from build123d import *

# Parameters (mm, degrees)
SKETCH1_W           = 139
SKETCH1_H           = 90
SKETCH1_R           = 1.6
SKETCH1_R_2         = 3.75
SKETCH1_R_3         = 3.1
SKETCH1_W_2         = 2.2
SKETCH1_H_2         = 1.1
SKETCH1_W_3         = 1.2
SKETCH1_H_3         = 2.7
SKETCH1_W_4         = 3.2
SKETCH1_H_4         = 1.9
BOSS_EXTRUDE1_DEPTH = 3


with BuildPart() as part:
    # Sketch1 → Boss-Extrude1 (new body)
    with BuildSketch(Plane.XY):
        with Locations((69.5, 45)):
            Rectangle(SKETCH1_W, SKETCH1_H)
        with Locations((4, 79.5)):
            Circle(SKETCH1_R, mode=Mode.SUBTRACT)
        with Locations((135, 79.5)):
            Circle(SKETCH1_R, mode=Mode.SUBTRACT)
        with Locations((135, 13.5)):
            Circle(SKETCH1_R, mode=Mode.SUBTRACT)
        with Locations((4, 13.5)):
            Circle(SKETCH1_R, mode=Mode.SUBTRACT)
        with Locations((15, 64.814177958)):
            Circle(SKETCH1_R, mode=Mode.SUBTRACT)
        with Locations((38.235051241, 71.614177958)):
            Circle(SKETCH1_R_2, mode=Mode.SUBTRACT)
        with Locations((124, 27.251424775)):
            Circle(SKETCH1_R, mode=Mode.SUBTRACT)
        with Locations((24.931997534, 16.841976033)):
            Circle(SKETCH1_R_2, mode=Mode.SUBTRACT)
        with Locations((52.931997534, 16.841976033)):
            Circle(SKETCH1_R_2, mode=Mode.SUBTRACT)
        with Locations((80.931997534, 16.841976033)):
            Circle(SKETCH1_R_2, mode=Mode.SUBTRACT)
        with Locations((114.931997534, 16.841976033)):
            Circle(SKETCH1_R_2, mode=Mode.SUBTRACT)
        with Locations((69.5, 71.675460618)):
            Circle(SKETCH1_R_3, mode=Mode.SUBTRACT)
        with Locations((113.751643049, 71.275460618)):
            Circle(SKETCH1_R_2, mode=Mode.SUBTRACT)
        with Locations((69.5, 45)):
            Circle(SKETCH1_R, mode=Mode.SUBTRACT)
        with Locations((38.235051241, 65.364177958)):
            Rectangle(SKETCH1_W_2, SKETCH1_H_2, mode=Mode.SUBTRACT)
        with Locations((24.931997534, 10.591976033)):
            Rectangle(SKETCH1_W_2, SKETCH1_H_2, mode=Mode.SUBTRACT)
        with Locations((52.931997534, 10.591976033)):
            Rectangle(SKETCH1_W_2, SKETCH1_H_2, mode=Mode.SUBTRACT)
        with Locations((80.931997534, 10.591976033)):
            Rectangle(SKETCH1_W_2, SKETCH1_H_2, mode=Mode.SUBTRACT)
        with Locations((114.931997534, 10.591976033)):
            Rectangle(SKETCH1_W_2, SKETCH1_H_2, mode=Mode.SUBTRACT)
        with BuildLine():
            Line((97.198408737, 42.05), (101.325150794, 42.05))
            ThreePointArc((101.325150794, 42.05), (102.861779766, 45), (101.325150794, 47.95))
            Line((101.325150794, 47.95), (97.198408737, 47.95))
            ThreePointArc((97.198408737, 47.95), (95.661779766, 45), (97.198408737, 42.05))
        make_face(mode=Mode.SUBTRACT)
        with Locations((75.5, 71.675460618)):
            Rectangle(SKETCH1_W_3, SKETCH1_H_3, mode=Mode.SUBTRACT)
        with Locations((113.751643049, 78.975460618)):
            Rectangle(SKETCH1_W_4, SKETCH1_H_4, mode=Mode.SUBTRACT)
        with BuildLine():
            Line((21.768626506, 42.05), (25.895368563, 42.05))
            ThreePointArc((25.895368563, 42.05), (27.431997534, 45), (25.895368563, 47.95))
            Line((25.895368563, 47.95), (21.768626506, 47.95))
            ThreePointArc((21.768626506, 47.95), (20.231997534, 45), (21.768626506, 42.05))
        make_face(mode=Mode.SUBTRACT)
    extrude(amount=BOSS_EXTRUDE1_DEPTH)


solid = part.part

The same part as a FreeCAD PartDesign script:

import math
import FreeCAD as App
import Part
import Sketcher
from FreeCAD import Vector
Q = App.Units.Quantity


def add_polygon(sketch, points):
    """Adds a closed chain of lines whose ends are joined by coincident constraints."""
    first, n = sketch.GeometryCount, len(points)
    for a, b in zip(points, points[1:] + points[:1]):
        sketch.addGeometry(Part.LineSegment(App.Vector(*a, 0), App.Vector(*b, 0)), False)
    for i in range(n):
        sketch.addConstraint(Sketcher.Constraint("Coincident", first + i, 2, first + (i + 1) % n, 1))

doc = App.newDocument("Part")
params = doc.addObject("Spreadsheet::Sheet", "Params")
for row, (alias, value) in enumerate([
    ("sketch1_diameter", "3.2 mm"),
    ("sketch1_diameter2", "7.5 mm"),
    ("sketch1_diameter3", "6.2 mm"),
    ("sketch1_radius", "3.6 mm"),
    ("sketch1_width", "139 mm"),
    ("pad1_length", "3 mm"),
], start=1):
    params.set(f"A{row}", alias)
    params.set(f"B{row}", "=" + value)
    params.setAlias(f"B{row}", alias)

body = doc.addObject("PartDesign::Body", "Body")

sketch1 = doc.addObject("Sketcher::SketchObject", "Sketch")
body.addObject(sketch1)
sketch1.AttachmentSupport = (doc.XY_Plane, [""])
sketch1.MapMode = "FlatFace"
add_polygon(sketch1, [(0, 90), (0, 0), (139, 0), (139, 90)])
sketch1.addGeometry(Part.Circle(Vector(4, 13.5, 0), Vector(0, 0, 1), 1.6), False)
add_polygon(sketch1, [(26.031998, 10.041976), (23.831998, 10.041976), (23.831998, 11.141976), (26.031998, 11.141976)])
sketch1.addGeometry(Part.Circle(Vector(24.931998, 16.841976, 0), Vector(0, 0, 1), 3.75), False)
add_polygon(sketch1, [(54.031998, 10.041976), (51.831998, 10.041976), (51.831998, 11.141976), (54.031998, 11.141976)])
sketch1.addGeometry(Part.Circle(Vector(52.931998, 16.841976, 0), Vector(0, 0, 1), 3.75), False)
sketch1.addGeometry(Part.LineSegment(Vector(25.895369, 42.05, 0), Vector(21.768627, 42.05, 0)), False)
sketch1.addGeometry(Part.ArcOfCircle(Part.Circle(Vector(23.831998, 45, 0), Vector(0, 0, 1), 3.6), math.radians(124.970781), math.radians(235.029219)), False)
sketch1.addGeometry(Part.LineSegment(Vector(21.768627, 47.95, 0), Vector(25.895369, 47.95, 0)), False)
sketch1.addGeometry(Part.ArcOfCircle(Part.Circle(Vector(23.831998, 45, 0), Vector(0, 0, 1), 3.6), math.radians(-55.029219), math.radians(55.029219)), False)
add_polygon(sketch1, [(82.031998, 10.041976), (79.831998, 10.041976), (79.831998, 11.141976), (82.031998, 11.141976)])
sketch1.addGeometry(Part.Circle(Vector(80.931998, 16.841976, 0), Vector(0, 0, 1), 3.75), False)
add_polygon(sketch1, [(116.031998, 10.041976), (113.831998, 10.041976), (113.831998, 11.141976), (116.031998, 11.141976)])
sketch1.addGeometry(Part.Circle(Vector(114.931998, 16.841976, 0), Vector(0, 0, 1), 3.75), False)
sketch1.addGeometry(Part.Circle(Vector(135, 13.5, 0), Vector(0, 0, 1), 1.6), False)
sketch1.addGeometry(Part.Circle(Vector(124, 27.251425, 0), Vector(0, 0, 1), 1.6), False)
sketch1.addGeometry(Part.Circle(Vector(69.5, 45, 0), Vector(0, 0, 1), 1.6), False)
sketch1.addGeometry(Part.LineSegment(Vector(101.325151, 42.05, 0), Vector(97.198409, 42.05, 0)), False)
sketch1.addGeometry(Part.ArcOfCircle(Part.Circle(Vector(99.26178, 45, 0), Vector(0, 0, 1), 3.6), math.radians(124.970781), math.radians(235.029219)), False)
sketch1.addGeometry(Part.LineSegment(Vector(97.198409, 47.95, 0), Vector(101.325151, 47.95, 0)), False)
sketch1.addGeometry(Part.ArcOfCircle(Part.Circle(Vector(99.26178, 45, 0), Vector(0, 0, 1), 3.6), math.radians(-55.029219), math.radians(55.029219)), False)
sketch1.addGeometry(Part.Circle(Vector(15, 64.814178, 0), Vector(0, 0, 1), 1.6), False)
sketch1.addGeometry(Part.Circle(Vector(4, 79.5, 0), Vector(0, 0, 1), 1.6), False)
add_polygon(sketch1, [(39.335051, 64.814178), (37.135051, 64.814178), (37.135051, 65.914178), (39.335051, 65.914178)])
sketch1.addGeometry(Part.Circle(Vector(38.235051, 71.614178, 0), Vector(0, 0, 1), 3.75), False)
sketch1.addGeometry(Part.Circle(Vector(69.5, 71.675461, 0), Vector(0, 0, 1), 3.1), False)
add_polygon(sketch1, [(76.1, 70.325461), (74.9, 70.325461), (74.9, 73.025461), (76.1, 73.025461)])
sketch1.addGeometry(Part.Circle(Vector(113.751643, 71.275461, 0), Vector(0, 0, 1), 3.75), False)
add_polygon(sketch1, [(115.351643, 78.025461), (112.151643, 78.025461), (112.151643, 79.925461), (115.351643, 79.925461)])
sketch1.addGeometry(Part.Circle(Vector(135, 79.5, 0), Vector(0, 0, 1), 1.6), False)
sketch1.addConstraint([
    Sketcher.Constraint("Coincident", 15, 2, 16, 2),
    Sketcher.Constraint("Coincident", 16, 1, 17, 1),
    Sketcher.Constraint("Coincident", 17, 2, 18, 2),
    Sketcher.Constraint("Coincident", 18, 1, 15, 1),
    Sketcher.Constraint("Coincident", 32, 2, 33, 2),
    Sketcher.Constraint("Coincident", 33, 1, 34, 1),
    Sketcher.Constraint("Coincident", 34, 2, 35, 2),
    Sketcher.Constraint("Coincident", 35, 1, 32, 1),
    Sketcher.Constraint("Vertical", 0),
    Sketcher.Constraint("Horizontal", 1),
    Sketcher.Constraint("Vertical", 2),
    Sketcher.Constraint("Horizontal", 3),
    Sketcher.Constraint("Horizontal", 5),
    Sketcher.Constraint("Vertical", 6),
    Sketcher.Constraint("Horizontal", 7),
    Sketcher.Constraint("Vertical", 8),
    Sketcher.Constraint("Horizontal", 10),
    Sketcher.Constraint("Vertical", 11),
    Sketcher.Constraint("Horizontal", 12),
    Sketcher.Constraint("Vertical", 13),
    Sketcher.Constraint("Horizontal", 15),
    Sketcher.Constraint("Horizontal", 17),
    Sketcher.Constraint("Horizontal", 19),
    Sketcher.Constraint("Vertical", 20),
    Sketcher.Constraint("Horizontal", 21),
    Sketcher.Constraint("Vertical", 22),
    Sketcher.Constraint("Horizontal", 24),
    Sketcher.Constraint("Vertical", 25),
    Sketcher.Constraint("Horizontal", 26),
    Sketcher.Constraint("Vertical", 27),
    Sketcher.Constraint("Horizontal", 32),
    Sketcher.Constraint("Horizontal", 34),
    Sketcher.Constraint("Horizontal", 38),
    Sketcher.Constraint("Vertical", 39),
    Sketcher.Constraint("Horizontal", 40),
    Sketcher.Constraint("Vertical", 41),
    Sketcher.Constraint("Horizontal", 44),
    Sketcher.Constraint("Vertical", 45),
    Sketcher.Constraint("Horizontal", 46),
    Sketcher.Constraint("Vertical", 47),
    Sketcher.Constraint("Horizontal", 49),
    Sketcher.Constraint("Vertical", 50),
    Sketcher.Constraint("Horizontal", 51),
    Sketcher.Constraint("Vertical", 52),
    Sketcher.Constraint("Coincident", 0, 2, -1, 1),
    Sketcher.Constraint("Coincident", 18, 3, 16, 3),
    Sketcher.Constraint("Coincident", 35, 3, 33, 3),
    Sketcher.Constraint("Equal", 9, 14),
    Sketcher.Constraint("Equal", 16, 18),
    Sketcher.Constraint("Equal", 14, 23),
    Sketcher.Constraint("Equal", 23, 28),
    Sketcher.Constraint("Equal", 4, 29),
    Sketcher.Constraint("Equal", 29, 30),
    Sketcher.Constraint("Equal", 30, 31),
    Sketcher.Constraint("Equal", 18, 33),
    Sketcher.Constraint("Equal", 33, 35),
    Sketcher.Constraint("Equal", 31, 36),
    Sketcher.Constraint("Equal", 36, 37),
    Sketcher.Constraint("Equal", 28, 42),
    Sketcher.Constraint("Equal", 42, 48),
    Sketcher.Constraint("Equal", 37, 53),
    Sketcher.Constraint("Horizontal", 9, 3, 14, 3),
    Sketcher.Constraint("Horizontal", 14, 3, 23, 3),
    Sketcher.Constraint("Horizontal", 23, 3, 28, 3),
    Sketcher.Constraint("Horizontal", 4, 3, 29, 3),
    Sketcher.Constraint("Horizontal", 18, 3, 31, 3),
    Sketcher.Constraint("Horizontal", 31, 3, 33, 3),
    Sketcher.Constraint("Horizontal", 37, 3, 53, 3),
    Sketcher.Constraint("Horizontal", 8, 2, 10, 2),
    Sketcher.Constraint("Horizontal", 7, 2, 11, 2),
    Sketcher.Constraint("Horizontal", 13, 2, 19, 2),
    Sketcher.Constraint("Horizontal", 12, 2, 20, 2),
    Sketcher.Constraint("Horizontal", 22, 2, 24, 2),
    Sketcher.Constraint("Horizontal", 21, 2, 25, 2),
    Sketcher.Constraint("Horizontal", 18, 1, 32, 2),
    Sketcher.Constraint("Horizontal", 17, 2, 33, 1),
    Sketcher.Constraint("Horizontal", 36, 3, 38, 2),
    Sketcher.Constraint("Vertical", 4, 3, 37, 3),
    Sketcher.Constraint("Vertical", 31, 3, 43, 3),
    Sketcher.Constraint("Vertical", 29, 3, 53, 3),
    Sketcher.Constraint("Vertical", 18, 3, 5, 2),
    Sketcher.Constraint("Vertical", 15, 2, 16, 1),
    Sketcher.Constraint("Equal", 7, 10),
    Sketcher.Constraint("Equal", 12, 19),
    Sketcher.Constraint("Equal", 21, 24),
    Sketcher.Constraint("Equal", 26, 38),
    Sketcher.Constraint("Equal", 27, 39),
    Sketcher.Constraint("Diameter", 4, Q("3.2 mm")),
    Sketcher.Constraint("Diameter", 9, Q("7.5 mm")),
    Sketcher.Constraint("Diameter", 43, Q("6.2 mm")),
    Sketcher.Constraint("Radius", 16, Q("3.6 mm")),
    Sketcher.Constraint("DistanceX", 1, 1, 1, 2, Q("139 mm")),
    Sketcher.Constraint("DistanceY", 0, 2, 0, 1, Q("90 mm")),
    Sketcher.Constraint("DistanceX", 5, 2, 5, 1, Q("2.2 mm")),
    Sketcher.Constraint("DistanceX", 44, 2, 44, 1, Q("1.2 mm")),
    Sketcher.Constraint("DistanceX", 49, 2, 49, 1, Q("3.2 mm")),
    Sketcher.Constraint("DistanceY", 6, 1, 6, 2, Q("1.1 mm")),
    Sketcher.Constraint("DistanceY", 45, 1, 45, 2, Q("2.7 mm")),
    Sketcher.Constraint("DistanceY", 50, 1, 50, 2, Q("1.9 mm")),
    Sketcher.Constraint("DistanceX", -1, 1, 4, 3, Q("4 mm")),
    Sketcher.Constraint("DistanceY", -1, 1, 16, 3, Q("45 mm")),
    Sketcher.Constraint("DistanceX", -1, 1, 29, 3, Q("135 mm")),
    Sketcher.Constraint("DistanceX", -1, 1, 30, 3, Q("124 mm")),
    Sketcher.Constraint("DistanceX", -1, 1, 36, 3, Q("15 mm")),
    Sketcher.Constraint("DistanceX", 9, 3, 14, 3, Q("28 mm")),
    Sketcher.Constraint("DistanceX", 14, 3, 23, 3, Q("28 mm")),
    Sketcher.Constraint("DistanceX", 23, 3, 28, 3, Q("34 mm")),
    Sketcher.Constraint("DistanceY", 4, 3, 37, 3, Q("66 mm")),
    Sketcher.Constraint("DistanceX", 5, 2, 10, 2, Q("28 mm")),
    Sketcher.Constraint("DistanceX", 10, 2, 19, 2, Q("28 mm")),
    Sketcher.Constraint("DistanceY", -1, 1, 4, 3, Q("13.5 mm")),
    Sketcher.Constraint("DistanceX", -1, 1, 31, 3, Q("69.5 mm")),
    Sketcher.Constraint("DistanceX", -1, 1, 44, 2, Q("74.9 mm")),
    Sketcher.Constraint("DistanceX", 16, 3, 9, 3, Q("1.1 mm")),
    Sketcher.Constraint("DistanceY", 36, 3, 42, 3, Q("6.8 mm")),
    Sketcher.Constraint("DistanceY", 48, 3, 43, 3, Q("0.4 mm")),
    Sketcher.Constraint("DistanceY", 5, 2, 9, 3, Q("6.8 mm")),
    Sketcher.Constraint("DistanceY", 15, 2, 16, 1, Q("5.9 mm")),
    Sketcher.Constraint("DistanceX", 24, 2, 28, 3, Q("1.1 mm")),
    Sketcher.Constraint("DistanceX", 38, 2, 42, 3, Q("1.1 mm")),
    Sketcher.Constraint("DistanceX", 49, 2, 48, 3, Q("1.6 mm")),
    Sketcher.Constraint("DistanceY", 44, 2, 43, 3, Q("1.35 mm")),
    Sketcher.Constraint("DistanceY", 48, 3, 49, 2, Q("6.75 mm")),
    Sketcher.Constraint("DistanceY", 9, 3, 36, 3, Q("47.972202 mm")),
    Sketcher.Constraint("DistanceX", -1, 1, 33, 3, Q("99.26178 mm")),
    Sketcher.Constraint("DistanceX", -1, 1, 42, 3, Q("38.235051 mm")),
    Sketcher.Constraint("DistanceY", -1, 1, 43, 3, Q("71.675461 mm")),
    Sketcher.Constraint("DistanceX", -1, 1, 17, 2, Q("25.895369 mm")),
    Sketcher.Constraint("DistanceY", 28, 3, 30, 3, Q("10.409449 mm")),
    Sketcher.Constraint("DistanceY", -1, 1, 9, 3, Q("16.841976 mm")),
    Sketcher.Constraint("DistanceX", -1, 1, 48, 3, Q("113.751643 mm")),
])
sketch1.setExpression("Constraints[119]", "Params.sketch1_diameter")
sketch1.setExpression("Constraints[120]", "Params.sketch1_diameter2")
sketch1.setExpression("Constraints[121]", "Params.sketch1_diameter3")
sketch1.setExpression("Constraints[122]", "Params.sketch1_radius")
sketch1.setExpression("Constraints[123]", "Params.sketch1_width")
pad1 = doc.addObject("PartDesign::Pad", "Pad")
body.addObject(pad1)
pad1.Profile = sketch1
pad1.setExpression("Length", "Params.pad1_length")

doc.recompute()
